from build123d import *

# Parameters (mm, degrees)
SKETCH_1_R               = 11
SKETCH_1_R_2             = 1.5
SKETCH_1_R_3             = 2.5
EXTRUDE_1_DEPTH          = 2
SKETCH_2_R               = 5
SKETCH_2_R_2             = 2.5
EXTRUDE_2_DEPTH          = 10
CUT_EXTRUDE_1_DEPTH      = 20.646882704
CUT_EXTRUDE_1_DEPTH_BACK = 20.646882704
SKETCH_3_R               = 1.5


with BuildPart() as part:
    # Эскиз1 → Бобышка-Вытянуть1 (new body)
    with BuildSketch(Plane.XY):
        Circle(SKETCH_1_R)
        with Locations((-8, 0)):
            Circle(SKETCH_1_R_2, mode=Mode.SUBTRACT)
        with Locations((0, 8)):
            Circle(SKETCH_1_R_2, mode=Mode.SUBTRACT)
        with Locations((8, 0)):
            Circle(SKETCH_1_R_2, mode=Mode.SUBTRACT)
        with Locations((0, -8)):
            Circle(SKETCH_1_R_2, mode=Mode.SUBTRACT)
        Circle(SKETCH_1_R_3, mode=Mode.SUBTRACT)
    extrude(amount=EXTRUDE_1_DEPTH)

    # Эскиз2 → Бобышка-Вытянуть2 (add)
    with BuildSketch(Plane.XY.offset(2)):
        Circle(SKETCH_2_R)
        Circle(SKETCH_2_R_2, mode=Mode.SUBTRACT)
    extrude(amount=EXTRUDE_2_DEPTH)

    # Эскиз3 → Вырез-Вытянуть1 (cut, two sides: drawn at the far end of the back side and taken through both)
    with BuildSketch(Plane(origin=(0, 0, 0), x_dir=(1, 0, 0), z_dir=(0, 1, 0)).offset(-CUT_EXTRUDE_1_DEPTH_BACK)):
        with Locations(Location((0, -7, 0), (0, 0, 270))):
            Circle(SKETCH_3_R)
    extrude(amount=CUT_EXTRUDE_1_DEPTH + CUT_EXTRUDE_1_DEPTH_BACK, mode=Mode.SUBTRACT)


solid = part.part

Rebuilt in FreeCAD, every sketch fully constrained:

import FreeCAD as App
import Part
import Sketcher

V = App.Vector

doc = App.newDocument("Part")
params = doc.addObject("Spreadsheet::Sheet", "Params")
for row, (alias, value) in enumerate([
    ("sketch1_diameter", "22 mm"),
    ("sketch1_diameter2", "3 mm"),
    ("sketch1_diameter3", "5 mm"),
    ("pad1_length", "2 mm"),
    ("sketch2_diameter", "10 mm"),
    ("sketch2_diameter2", "5 mm"),
    ("pad2_length", "10 mm"),
    ("sketch3_diameter", "3 mm"),
], start=1):
    params.set(f"A{row}", alias)
    params.set(f"B{row}", "=" + value)
    params.setAlias(f"B{row}", alias)

body = doc.addObject("PartDesign::Body", "Body")

sketch1 = doc.addObject("Sketcher::SketchObject", "Sketch")
body.addObject(sketch1)
sketch1.AttachmentSupport = (doc.XY_Plane, [""])
sketch1.MapMode = "FlatFace"
sketch1.addGeometry([
    Part.Circle(V(0, 0, 0), V(0, 0, 1), 11),
    Part.Circle(V(0, -8, 0), V(0, 0, 1), 1.5),
    Part.Circle(V(-8, 0, 0), V(0, 0, 1), 1.5),
    Part.Circle(V(0, 0, 0), V(0, 0, 1), 2.5),
    Part.Circle(V(8, 0, 0), V(0, 0, 1), 1.5),
    Part.Circle(V(0, 8, 0), V(0, 0, 1), 1.5),
], False)
sketch1.addConstraint([
    Sketcher.Constraint("Coincident", 0, 3, -1, 1),
    Sketcher.Constraint("Coincident", 3, 3, -1, 1),
    Sketcher.Constraint("Equal", 1, 2),
    Sketcher.Constraint("Equal", 2, 4),
    Sketcher.Constraint("Equal", 4, 5),
    Sketcher.Constraint("Symmetric", 2, 3, 4, 3, -1, 1),
    Sketcher.Constraint("Symmetric", 1, 3, 5, 3, -1, 1),
    Sketcher.Constraint("PointOnObject", 1, 3, -2),
    Sketcher.Constraint("PointOnObject", 2, 3, -1),
    Sketcher.Constraint("Diameter", 0, 22.0),
    Sketcher.Constraint("Diameter", 1, 3.0),
    Sketcher.Constraint("Diameter", 3, 5.0),
    Sketcher.Constraint("DistanceY", 1, 3, -1, 1, 8.0),
    Sketcher.Constraint("DistanceX", 2, 3, -1, 1, 8.0),
])
sketch1.setExpression("Constraints[9]", "Params.sketch1_diameter")
sketch1.setExpression("Constraints[10]", "Params.sketch1_diameter2")
sketch1.setExpression("Constraints[11]", "Params.sketch1_diameter3")
pad1 = doc.addObject("PartDesign::Pad", "Pad")
body.addObject(pad1)
pad1.Profile = sketch1
pad1.setExpression("Length", "Params.pad1_length")

sketch2 = doc.addObject("Sketcher::SketchObject", "Sketch001")
body.addObject(sketch2)
sketch2.AttachmentSupport = (doc.XY_Plane, [""])
sketch2.MapMode = "FlatFace"
sketch2.AttachmentOffset = App.Placement(V(0, 0, 2), App.Rotation())
sketch2.addGeometry([
    Part.Circle(V(0, 0, 0), V(0, 0, 1), 5),
    Part.Circle(V(0, 0, 0), V(0, 0, 1), 2.5),
], False)
sketch2.addConstraint([
    Sketcher.Constraint("Coincident", 0, 3, -1, 1),
    Sketcher.Constraint("Coincident", 1, 3, -1, 1),
    Sketcher.Constraint("Diameter", 0, 10.0),
    Sketcher.Constraint("Diameter", 1, 5.0),
])
sketch2.setExpression("Constraints[2]", "Params.sketch2_diameter")
sketch2.setExpression("Constraints[3]", "Params.sketch2_diameter2")
pad2 = doc.addObject("PartDesign::Pad", "Pad001")
body.addObject(pad2)
pad2.Profile = sketch2
pad2.setExpression("Length", "Params.pad2_length")

sketch3 = doc.addObject("Sketcher::SketchObject", "Sketch002")
body.addObject(sketch3)
sketch3.AttachmentSupport = (doc.XZ_Plane, [""])
sketch3.MapMode = "FlatFace"
sketch3.addGeometry(Part.Circle(V(0, 7, 0), V(0, 0, 1), 1.5), False)
sketch3.addConstraint([
    Sketcher.Constraint("PointOnObject", 0, 3, -2),
    Sketcher.Constraint("Diameter", 0, 3.0),
    Sketcher.Constraint("DistanceY", -1, 1, 0, 3, 7.0),
])
sketch3.setExpression("Constraints[1]", "Params.sketch3_diameter")
pocket1 = doc.addObject("PartDesign::Pocket", "Pocket")
body.addObject(pocket1)
pocket1.Profile = sketch3
pocket1.Type = "ThroughAll"
pocket1.Midplane = True

doc.recompute()
